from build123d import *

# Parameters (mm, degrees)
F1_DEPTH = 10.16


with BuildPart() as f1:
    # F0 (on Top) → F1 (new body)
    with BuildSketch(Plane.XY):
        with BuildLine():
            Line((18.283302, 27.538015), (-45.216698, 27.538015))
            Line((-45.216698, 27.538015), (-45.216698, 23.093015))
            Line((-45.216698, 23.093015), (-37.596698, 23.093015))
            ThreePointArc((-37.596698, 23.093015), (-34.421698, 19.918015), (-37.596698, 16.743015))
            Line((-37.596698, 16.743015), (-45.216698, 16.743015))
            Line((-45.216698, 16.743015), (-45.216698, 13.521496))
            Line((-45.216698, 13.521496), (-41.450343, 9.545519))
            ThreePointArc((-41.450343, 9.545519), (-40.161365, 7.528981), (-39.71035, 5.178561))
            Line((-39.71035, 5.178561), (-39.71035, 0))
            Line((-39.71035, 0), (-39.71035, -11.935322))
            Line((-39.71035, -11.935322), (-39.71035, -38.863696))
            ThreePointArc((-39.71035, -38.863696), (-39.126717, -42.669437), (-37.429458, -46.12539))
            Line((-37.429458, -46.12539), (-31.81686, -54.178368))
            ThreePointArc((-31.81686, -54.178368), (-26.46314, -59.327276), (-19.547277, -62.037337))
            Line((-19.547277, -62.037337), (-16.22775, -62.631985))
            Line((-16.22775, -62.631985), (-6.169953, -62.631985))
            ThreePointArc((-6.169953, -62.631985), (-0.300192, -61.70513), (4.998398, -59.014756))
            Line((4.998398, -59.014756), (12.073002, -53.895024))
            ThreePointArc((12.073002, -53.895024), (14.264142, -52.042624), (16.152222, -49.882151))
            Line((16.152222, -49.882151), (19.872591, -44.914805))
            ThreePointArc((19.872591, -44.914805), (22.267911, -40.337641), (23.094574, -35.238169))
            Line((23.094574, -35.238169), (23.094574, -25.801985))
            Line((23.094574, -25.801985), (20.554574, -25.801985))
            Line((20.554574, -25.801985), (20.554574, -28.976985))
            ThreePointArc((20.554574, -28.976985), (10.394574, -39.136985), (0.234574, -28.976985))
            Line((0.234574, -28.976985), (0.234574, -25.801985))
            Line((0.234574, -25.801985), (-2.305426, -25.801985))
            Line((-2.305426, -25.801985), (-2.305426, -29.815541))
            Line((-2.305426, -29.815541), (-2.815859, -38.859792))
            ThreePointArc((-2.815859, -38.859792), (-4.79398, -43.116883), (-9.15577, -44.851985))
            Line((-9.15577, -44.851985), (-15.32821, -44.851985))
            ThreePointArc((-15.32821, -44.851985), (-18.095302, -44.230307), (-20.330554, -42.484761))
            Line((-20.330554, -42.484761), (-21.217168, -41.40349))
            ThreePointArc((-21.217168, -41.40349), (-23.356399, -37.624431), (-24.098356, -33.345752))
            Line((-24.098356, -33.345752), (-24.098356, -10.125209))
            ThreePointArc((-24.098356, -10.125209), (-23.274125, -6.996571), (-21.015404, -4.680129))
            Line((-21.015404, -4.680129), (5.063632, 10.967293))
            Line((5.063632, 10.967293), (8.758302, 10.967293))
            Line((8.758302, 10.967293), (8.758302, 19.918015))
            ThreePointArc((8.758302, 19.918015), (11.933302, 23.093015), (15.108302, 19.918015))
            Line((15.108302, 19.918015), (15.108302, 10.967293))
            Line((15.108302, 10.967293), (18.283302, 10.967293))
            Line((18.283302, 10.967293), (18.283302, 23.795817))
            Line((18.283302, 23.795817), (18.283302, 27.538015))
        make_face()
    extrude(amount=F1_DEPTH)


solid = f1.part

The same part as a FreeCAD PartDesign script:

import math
import FreeCAD as App
import Part
import Sketcher

V = App.Vector
Q = App.Units.Quantity

doc = App.newDocument("Part")
body = doc.addObject("PartDesign::Body", "Body")

# Sketch on XY plane
sketch1 = body.newObject("Sketcher::SketchObject", "Sketch")
sketch1.AttachmentSupport = (doc.getObject("XY_Plane"), [""])
sketch1.MapMode = "FlatFace"
sketch1.addGeometry(Part.LineSegment(V(18.283302, 27.538015, 0), V(-45.216698, 27.538015, 0)), False)
sketch1.addGeometry(Part.LineSegment(V(-45.216698, 27.538015, 0), V(-45.216698, 23.093015, 0)), False)
sketch1.addGeometry(Part.LineSegment(V(-45.216698, 23.093015, 0), V(-37.596698, 23.093015, 0)), False)
sketch1.addGeometry(Part.ArcOfCircle(Part.Circle(V(-37.596698, 19.918015, 0), V(0, 0, 1), 3.175), math.radians(-90), math.radians(90)), False)
sketch1.addGeometry(Part.LineSegment(V(-37.596698, 16.743015, 0), V(-45.216698, 16.743015, 0)), False)
sketch1.addGeometry(Part.LineSegment(V(-45.216698, 16.743015, 0), V(-45.216698, 13.521496, 0)), False)
sketch1.addGeometry(Part.LineSegment(V(-45.216698, 13.521496, 0), V(-41.450343, 9.545519, 0)), False)
sketch1.addGeometry(Part.ArcOfCircle(Part.Circle(V(-46.060344, 5.178562, 0), V(0, 0, 1), 6.349994), math.radians(-0.000006), math.radians(43.44914)), False)
sketch1.addGeometry(Part.LineSegment(V(-39.71035, 5.178561, 0), V(-39.71035, -38.863696, 0)), False)
sketch1.addGeometry(Part.ArcOfCircle(Part.Circle(V(-27.010356, -38.863699, 0), V(0, 0, 1), 12.699994), math.radians(179.999987), math.radians(214.874933)), False)
sketch1.addGeometry(Part.LineSegment(V(-37.429458, -46.12539, 0), V(-31.81686, -54.178368, 0)), False)
sketch1.addGeometry(Part.ArcOfCircle(Part.Circle(V(-16.188195, -43.285823, 0), V(0, 0, 1), 19.050005), math.radians(-145.12507), math.radians(-100.156048)), False)
sketch1.addGeometry(Part.LineSegment(V(-19.547277, -62.037337, 0), V(-16.22775, -62.631985, 0)), False)
sketch1.addGeometry(Part.LineSegment(V(-16.22775, -62.631985, 0), V(-6.169953, -62.631985, 0)), False)
sketch1.addGeometry(Part.ArcOfCircle(Part.Circle(V(-6.169956, -43.581978, 0), V(0, 0, 1), 19.050007), math.radians(-89.999991), math.radians(-54.107587)), False)
sketch1.addGeometry(Part.LineSegment(V(4.998398, -59.014756, 0), V(12.073002, -53.895024, 0)), False)
sketch1.addGeometry(Part.ArcOfCircle(Part.Circle(V(0.904632, -38.462233, 0), V(0, 0, 1), 19.050027), math.radians(-54.107571), math.radians(-36.831943)), False)
sketch1.addGeometry(Part.LineSegment(V(16.152222, -49.882151, 0), V(19.872591, -44.914805, 0)), False)
sketch1.addGeometry(Part.ArcOfCircle(Part.Circle(V(6.952585, -35.238171, 0), V(0, 0, 1), 16.141989), math.radians(-36.831932), math.radians(0.000006)), False)
sketch1.addGeometry(Part.LineSegment(V(23.094574, -35.238169, 0), V(23.094574, -25.801985, 0)), False)
sketch1.addGeometry(Part.LineSegment(V(23.094574, -25.801985, 0), V(20.554574, -25.801985, 0)), False)
sketch1.addGeometry(Part.LineSegment(V(20.554574, -25.801985, 0), V(20.554574, -28.976985, 0)), False)
sketch1.addGeometry(Part.ArcOfCircle(Part.Circle(V(10.394574, -28.976985, 0), V(0, 0, 1), 10.16), math.radians(180), math.radians(360)), False)
sketch1.addGeometry(Part.LineSegment(V(0.234574, -28.976985, 0), V(0.234574, -25.801985, 0)), False)
sketch1.addGeometry(Part.LineSegment(V(0.234574, -25.801985, 0), V(-2.305426, -25.801985, 0)), False)
sketch1.addGeometry(Part.LineSegment(V(-2.305426, -25.801985, 0), V(-2.305426, -29.815541, 0)), False)
sketch1.addGeometry(Part.LineSegment(V(-2.305426, -29.815541, 0), V(-2.815859, -38.859792, 0)), False)
sketch1.addGeometry(Part.ArcOfCircle(Part.Circle(V(-9.155771, -38.501984, 0), V(0, 0, 1), 6.350001), math.radians(-89.999993), math.radians(-3.230193)), False)
sketch1.addGeometry(Part.LineSegment(V(-9.15577, -44.851985, 0), V(-15.32821, -44.851985, 0)), False)
sketch1.addGeometry(Part.ArcOfCircle(Part.Circle(V(-15.328209, -38.382973, 0), V(0, 0, 1), 6.469012), math.radians(-140.649169), math.radians(-90.000005)), False)
sketch1.addGeometry(Part.LineSegment(V(-20.330554, -42.484761, 0), V(-21.217168, -41.40349, 0)), False)
sketch1.addGeometry(Part.ArcOfCircle(Part.Circle(V(-11.390328, -33.345749, 0), V(0, 0, 1), 12.708028), math.radians(-179.999986), math.radians(-140.649181)), False)
sketch1.addGeometry(Part.LineSegment(V(-24.098356, -33.345752, 0), V(-24.098356, -10.125209, 0)), False)
sketch1.addGeometry(Part.ArcOfCircle(Part.Circle(V(-17.748356, -10.125209, 0), V(0, 0, 1), 6.35), math.radians(120.963758), math.radians(179.999998)), False)
sketch1.addGeometry(Part.LineSegment(V(-21.015404, -4.680129, 0), V(5.063632, 10.967293, 0)), False)
sketch1.addGeometry(Part.LineSegment(V(5.063632, 10.967293, 0), V(8.758302, 10.967293, 0)), False)
sketch1.addGeometry(Part.LineSegment(V(8.758302, 10.967293, 0), V(8.758302, 19.918015, 0)), False)
sketch1.addGeometry(Part.ArcOfCircle(Part.Circle(V(11.933302, 19.918015, 0), V(0, 0, 1), 3.175), math.radians(0), math.radians(180)), False)
sketch1.addGeometry(Part.LineSegment(V(15.108302, 19.918015, 0), V(15.108302, 10.967293, 0)), False)
sketch1.addGeometry(Part.LineSegment(V(15.108302, 10.967293, 0), V(18.283302, 10.967293, 0)), False)
sketch1.addGeometry(Part.LineSegment(V(18.283302, 10.967293, 0), V(18.283302, 27.538015, 0)), False)
sketch1.addConstraint(Sketcher.Constraint("Coincident", 0, 2, 1, 1))
sketch1.addConstraint(Sketcher.Constraint("Coincident", 1, 2, 2, 1))
sketch1.addConstraint(Sketcher.Constraint("Coincident", 2, 2, 3, 2))
sketch1.addConstraint(Sketcher.Constraint("Coincident", 3, 1, 4, 1))
sketch1.addConstraint(Sketcher.Constraint("Coincident", 4, 2, 5, 1))
sketch1.addConstraint(Sketcher.Constraint("Coincident", 5, 2, 6, 1))
sketch1.addConstraint(Sketcher.Constraint("Coincident", 6, 2, 7, 2))
sketch1.addConstraint(Sketcher.Constraint("Coincident", 7, 1, 8, 1))
sketch1.addConstraint(Sketcher.Constraint("Coincident", 8, 2, 9, 1))
sketch1.addConstraint(Sketcher.Constraint("Coincident", 9, 2, 10, 1))
sketch1.addConstraint(Sketcher.Constraint("Coincident", 10, 2, 11, 1))
sketch1.addConstraint(Sketcher.Constraint("Coincident", 11, 2, 12, 1))
sketch1.addConstraint(Sketcher.Constraint("Coincident", 12, 2, 13, 1))
sketch1.addConstraint(Sketcher.Constraint("Coincident", 13, 2, 14, 1))
sketch1.addConstraint(Sketcher.Constraint("Coincident", 14, 2, 15, 1))
sketch1.addConstraint(Sketcher.Constraint("Coincident", 15, 2, 16, 1))
sketch1.addConstraint(Sketcher.Constraint("Coincident", 16, 2, 17, 1))
sketch1.addConstraint(Sketcher.Constraint("Coincident", 17, 2, 18, 1))
sketch1.addConstraint(Sketcher.Constraint("Coincident", 18, 2, 19, 1))
sketch1.addConstraint(Sketcher.Constraint("Coincident", 19, 2, 20, 1))
sketch1.addConstraint(Sketcher.Constraint("Coincident", 20, 2, 21, 1))
sketch1.addConstraint(Sketcher.Constraint("Coincident", 21, 2, 22, 2))
sketch1.addConstraint(Sketcher.Constraint("Coincident", 22, 1, 23, 1))
sketch1.addConstraint(Sketcher.Constraint("Coincident", 23, 2, 24, 1))
sketch1.addConstraint(Sketcher.Constraint("Coincident", 24, 2, 25, 1))
sketch1.addConstraint(Sketcher.Constraint("Coincident", 25, 2, 26, 1))
sketch1.addConstraint(Sketcher.Constraint("Coincident", 26, 2, 27, 2))
sketch1.addConstraint(Sketcher.Constraint("Coincident", 27, 1, 28, 1))
sketch1.addConstraint(Sketcher.Constraint("Coincident", 28, 2, 29, 2))
sketch1.addConstraint(Sketcher.Constraint("Coincident", 29, 1, 30, 1))
sketch1.addConstraint(Sketcher.Constraint("Coincident", 30, 2, 31, 2))
sketch1.addConstraint(Sketcher.Constraint("Coincident", 31, 1, 32, 1))
sketch1.addConstraint(Sketcher.Constraint("Coincident", 32, 2, 33, 2))
sketch1.addConstraint(Sketcher.Constraint("Coincident", 33, 1, 34, 1))
sketch1.addConstraint(Sketcher.Constraint("Coincident", 34, 2, 35, 1))
sketch1.addConstraint(Sketcher.Constraint("Coincident", 35, 2, 36, 1))
sketch1.addConstraint(Sketcher.Constraint("Coincident", 36, 2, 37, 2))
sketch1.addConstraint(Sketcher.Constraint("Coincident", 37, 1, 38, 1))
sketch1.addConstraint(Sketcher.Constraint("Coincident", 38, 2, 39, 1))
sketch1.addConstraint(Sketcher.Constraint("Coincident", 39, 2, 40, 1))
sketch1.addConstraint(Sketcher.Constraint("Coincident", 40, 2, 0, 1))
sketch1.addConstraint(Sketcher.Constraint("Horizontal", 0))
sketch1.addConstraint(Sketcher.Constraint("Vertical", 1))
sketch1.addConstraint(Sketcher.Constraint("Horizontal", 2))
sketch1.addConstraint(Sketcher.Constraint("Horizontal", 4))
sketch1.addConstraint(Sketcher.Constraint("Vertical", 5))
sketch1.addConstraint(Sketcher.Constraint("Vertical", 8))
sketch1.addConstraint(Sketcher.Constraint("Horizontal", 13))
sketch1.addConstraint(Sketcher.Constraint("Vertical", 19))
sketch1.addConstraint(Sketcher.Constraint("Horizontal", 20))
sketch1.addConstraint(Sketcher.Constraint("Vertical", 21))
sketch1.addConstraint(Sketcher.Constraint("Vertical", 23))
sketch1.addConstraint(Sketcher.Constraint("Horizontal", 24))
sketch1.addConstraint(Sketcher.Constraint("Vertical", 25))
sketch1.addConstraint(Sketcher.Constraint("Horizontal", 28))
sketch1.addConstraint(Sketcher.Constraint("Vertical", 32))
sketch1.addConstraint(Sketcher.Constraint("Horizontal", 35))
sketch1.addConstraint(Sketcher.Constraint("Vertical", 36))
sketch1.addConstraint(Sketcher.Constraint("Vertical", 38))
sketch1.addConstraint(Sketcher.Constraint("Horizontal", 39))
sketch1.addConstraint(Sketcher.Constraint("Vertical", 40))
sketch1.addConstraint(Sketcher.Constraint("Radius", 22, Q("0.4 in")))
sketch1.addConstraint(Sketcher.Constraint("Radius", 11, Q("0.7500002 in")))
sketch1.addConstraint(Sketcher.Constraint("Radius", 27, Q("0.25 in")))
sketch1.addConstraint(Sketcher.Constraint("Radius", 33, Q("0.25 in")))
sketch1.addConstraint(Sketcher.Constraint("DistanceX", 0, 2, 0, 1, Q("2.5 in")))
sketch1.addConstraint(Sketcher.Constraint("DistanceX", 2, 1, 2, 2, Q("0.3 in")))
sketch1.addConstraint(Sketcher.Constraint("DistanceX", 4, 2, 4, 1, Q("0.3 in")))
sketch1.addConstraint(Sketcher.Constraint("DistanceX", 20, 2, 20, 1, Q("0.1 in")))
sketch1.addConstraint(Sketcher.Constraint("DistanceX", 24, 2, 24, 1, Q("0.1 in")))
sketch1.addConstraint(Sketcher.Constraint("Radius", 3, Q("0.125 in")))
sketch1.addConstraint(Sketcher.Constraint("Radius", 37, Q("0.125 in")))
sketch1.addConstraint(Sketcher.Constraint("DistanceX", 0, 2, 3, 3, Q("0.3 in")))
sketch1.addConstraint(Sketcher.Constraint("DistanceY", 3, 3, 0, 2, Q("0.3 in")))
sketch1.addConstraint(Sketcher.Constraint("DistanceY", 37, 3, 0, 2, Q("0.3 in")))
sketch1.addConstraint(Sketcher.Constraint("DistanceX", 1, 2, 3, 1, Q("0.3 in")))
sketch1.addConstraint(Sketcher.Constraint("DistanceY", 37, 1, 40, 2, Q("0.3 in")))
sketch1.addConstraint(Sketcher.Constraint("DistanceY", 36, 2, 40, 2, Q("0.3 in")))
sketch1.addConstraint(Sketcher.Constraint("DistanceX", 39, 1, 39, 2, Q("0.125 in")))
sketch1.addConstraint(Sketcher.Constraint("DistanceY", 21, 2, 21, 1, Q("0.125 in")))
sketch1.addConstraint(Sketcher.Constraint("DistanceY", 23, 1, 23, 2, Q("0.125 in")))
sketch1.addConstraint(Sketcher.Constraint("DistanceY", 13, 2, 27, 3, Q("0.95 in")))
sketch1.addConstraint(Sketcher.Constraint("Radius", 18, Q("16.141989 mm")))
sketch1.addConstraint(Sketcher.Constraint("Radius", 29, Q("6.469012 mm")))
sketch1.addConstraint(Sketcher.Constraint("Radius", 31, Q("12.708028 mm")))
sketch1.addConstraint(Sketcher.Constraint("DistanceY", 22, 3, 37, 3, Q("1.925 in")))
sketch1.addConstraint(Sketcher.Constraint("DistanceY", 22, 3, 19, 2, Q("0.125 in")))
sketch1.addConstraint(Sketcher.Constraint("DistanceY", 27, 3, 22, 1, Q("0.375 in")))
sketch1.addConstraint(Sketcher.Constraint("DistanceY", 22, 3, 23, 2, Q("0.125 in")))
sketch1.addConstraint(Sketcher.Constraint("DistanceX", 9, 3, -1, 1, Q("1.0633999 in")))
sketch1.addConstraint(Sketcher.Constraint("Radius", 7, Q("6.349994 mm")))
sketch1.addConstraint(Sketcher.Constraint("Radius", 9, Q("12.699994 mm")))
sketch1.addConstraint(Sketcher.Constraint("Radius", 14, Q("19.050007 mm")))
sketch1.addConstraint(Sketcher.Constraint("Radius", 16, Q("19.050027 mm")))
sketch1.addConstraint(Sketcher.Constraint("Distance", 17, Q("6.2061 mm")))
sketch1.addConstraint(Sketcher.Constraint("DistanceX", 28, 2, 28, 1, Q("6.17244 mm")))
sketch1.addConstraint(Sketcher.Constraint("DistanceX", 35, 1, 35, 2, Q("3.69467 mm")))
sketch1.addConstraint(Sketcher.Constraint("DistanceY", 5, 2, 5, 1, Q("3.221519 mm")))
sketch1.addConstraint(Sketcher.Constraint("DistanceX", 3, 3, -1, 1, Q("37.596698 mm")))
sketch1.addConstraint(Sketcher.Constraint("DistanceY", 9, 3, -1, 1, Q("38.863699 mm")))
sketch1.addConstraint(Sketcher.Constraint("DistanceX", 9, 3, 14, 3, Q("20.840401 mm")))
sketch1.addConstraint(Sketcher.Constraint("DistanceX", 9, 3, 33, 3, Q("9.262001 mm")))
sketch1.addConstraint(Sketcher.Constraint("DistanceX", 7, 3, 6, 2, Q("4.610001 mm")))
sketch1.addConstraint(Sketcher.Constraint("DistanceX", 9, 2, 9, 3, Q("10.419102 mm")))
sketch1.addConstraint(Sketcher.Constraint("DistanceX", 31, 3, 22, 1, Q("11.624902 mm")))
sketch1.addConstraint(Sketcher.Constraint("DistanceY", 32, 2, 34, 2, Q("21.092502 mm")))
sketch1.addConstraint(Sketcher.Constraint("Distance", 6, Q("5.476662 mm")))
sketch1.addConstraint(Sketcher.Constraint("Distance", 10, Q("9.815891 mm")))
sketch1.addConstraint(Sketcher.Constraint("Distance", 34, Q("30.413121 mm")))
sketch1.addConstraint(Sketcher.Constraint("DistanceX", 13, 1, 13, 2, Q("10.057797 mm")))
sketch1.addConstraint(Sketcher.Constraint("DistanceY", 8, 2, 8, 1, Q("44.042257 mm")))
sketch1.addConstraint(Sketcher.Constraint("DistanceY", 19, 1, 19, 2, Q("9.436184 mm")))
sketch1.addConstraint(Sketcher.Constraint("DistanceY", 25, 2, 25, 1, Q("4.013556 mm")))
sketch1.addConstraint(Sketcher.Constraint("DistanceY", 32, 1, 32, 2, Q("23.220543 mm")))
sketch1.addConstraint(Sketcher.Constraint("DistanceY", 36, 1, 36, 2, Q("8.950722 mm")))
sketch1.addConstraint(Sketcher.Constraint("DistanceY", 38, 2, 38, 1, Q("8.950722 mm")))
sketch1.addConstraint(Sketcher.Constraint("DistanceY", -1, 1, 7, 3, Q("5.178562 mm")))
sketch1.addConstraint(Sketcher.Constraint("DistanceX", -1, 1, 16, 3, Q("0.904632 mm")))
sketch1.addConstraint(Sketcher.Constraint("DistanceY", 18, 3, -1, 1, Q("35.238171 mm")))
sketch1.addConstraint(Sketcher.Constraint("DistanceX", 27, 3, -1, 1, Q("9.155771 mm")))
sketch1.addConstraint(Sketcher.Constraint("DistanceX", 29, 3, -1, 1, Q("15.328209 mm")))
sketch1.addConstraint(Sketcher.Constraint("DistanceY", 31, 3, -1, 1, Q("33.345749 mm")))
sketch1.addConstraint(Sketcher.Constraint("DistanceY", 33, 3, -1, 1, Q("10.125209 mm")))
sketch1.addConstraint(Sketcher.Constraint("DistanceY", -1, 1, 7, 1, Q("5.178561 mm")))
sketch1.addConstraint(Sketcher.Constraint("DistanceX", 10, 2, -1, 1, Q("31.81686 mm")))
sketch1.addConstraint(Sketcher.Constraint("DistanceX", 12, 2, -1, 1, Q("16.22775 mm")))
sketch1.addConstraint(Sketcher.Constraint("DistanceX", -1, 1, 16, 2, Q("16.152222 mm")))
sketch1.addConstraint(Sketcher.Constraint("DistanceY", 16, 2, -1, 1, Q("49.882151 mm")))
sketch1.addConstraint(Sketcher.Constraint("DistanceX", 26, 2, -1, 1, Q("2.815859 mm")))
sketch1.addConstraint(Sketcher.Constraint("DistanceX", 27, 1, -1, 1, Q("9.15577 mm")))
sketch1.addConstraint(Sketcher.Constraint("DistanceY", 29, 1, -1, 1, Q("42.484761 mm")))
sketch1.addConstraint(Sketcher.Constraint("DistanceX", 30, 2, -1, 1, Q("21.217168 mm")))
sketch1.addConstraint(Sketcher.Constraint("DistanceX", 9, 3, 11, 3, Q("10.822161 mm")))
sketch1.addConstraint(Sketcher.Constraint("DistanceY", 11, 2, 10, 2, Q("7.858969 mm")))
sketch1.addConstraint(Sketcher.Constraint("DistanceX", 13, 2, 14, 2, Q("11.168351 mm")))
sketch1.addConstraint(Sketcher.Constraint("DistanceY", 14, 2, 15, 2, Q("5.119732 mm")))
pad1 = body.newObject("PartDesign::Pad", "Pad")
pad1.Profile = sketch1
pad1.Length = Q("0.4 in")

doc.recompute()
